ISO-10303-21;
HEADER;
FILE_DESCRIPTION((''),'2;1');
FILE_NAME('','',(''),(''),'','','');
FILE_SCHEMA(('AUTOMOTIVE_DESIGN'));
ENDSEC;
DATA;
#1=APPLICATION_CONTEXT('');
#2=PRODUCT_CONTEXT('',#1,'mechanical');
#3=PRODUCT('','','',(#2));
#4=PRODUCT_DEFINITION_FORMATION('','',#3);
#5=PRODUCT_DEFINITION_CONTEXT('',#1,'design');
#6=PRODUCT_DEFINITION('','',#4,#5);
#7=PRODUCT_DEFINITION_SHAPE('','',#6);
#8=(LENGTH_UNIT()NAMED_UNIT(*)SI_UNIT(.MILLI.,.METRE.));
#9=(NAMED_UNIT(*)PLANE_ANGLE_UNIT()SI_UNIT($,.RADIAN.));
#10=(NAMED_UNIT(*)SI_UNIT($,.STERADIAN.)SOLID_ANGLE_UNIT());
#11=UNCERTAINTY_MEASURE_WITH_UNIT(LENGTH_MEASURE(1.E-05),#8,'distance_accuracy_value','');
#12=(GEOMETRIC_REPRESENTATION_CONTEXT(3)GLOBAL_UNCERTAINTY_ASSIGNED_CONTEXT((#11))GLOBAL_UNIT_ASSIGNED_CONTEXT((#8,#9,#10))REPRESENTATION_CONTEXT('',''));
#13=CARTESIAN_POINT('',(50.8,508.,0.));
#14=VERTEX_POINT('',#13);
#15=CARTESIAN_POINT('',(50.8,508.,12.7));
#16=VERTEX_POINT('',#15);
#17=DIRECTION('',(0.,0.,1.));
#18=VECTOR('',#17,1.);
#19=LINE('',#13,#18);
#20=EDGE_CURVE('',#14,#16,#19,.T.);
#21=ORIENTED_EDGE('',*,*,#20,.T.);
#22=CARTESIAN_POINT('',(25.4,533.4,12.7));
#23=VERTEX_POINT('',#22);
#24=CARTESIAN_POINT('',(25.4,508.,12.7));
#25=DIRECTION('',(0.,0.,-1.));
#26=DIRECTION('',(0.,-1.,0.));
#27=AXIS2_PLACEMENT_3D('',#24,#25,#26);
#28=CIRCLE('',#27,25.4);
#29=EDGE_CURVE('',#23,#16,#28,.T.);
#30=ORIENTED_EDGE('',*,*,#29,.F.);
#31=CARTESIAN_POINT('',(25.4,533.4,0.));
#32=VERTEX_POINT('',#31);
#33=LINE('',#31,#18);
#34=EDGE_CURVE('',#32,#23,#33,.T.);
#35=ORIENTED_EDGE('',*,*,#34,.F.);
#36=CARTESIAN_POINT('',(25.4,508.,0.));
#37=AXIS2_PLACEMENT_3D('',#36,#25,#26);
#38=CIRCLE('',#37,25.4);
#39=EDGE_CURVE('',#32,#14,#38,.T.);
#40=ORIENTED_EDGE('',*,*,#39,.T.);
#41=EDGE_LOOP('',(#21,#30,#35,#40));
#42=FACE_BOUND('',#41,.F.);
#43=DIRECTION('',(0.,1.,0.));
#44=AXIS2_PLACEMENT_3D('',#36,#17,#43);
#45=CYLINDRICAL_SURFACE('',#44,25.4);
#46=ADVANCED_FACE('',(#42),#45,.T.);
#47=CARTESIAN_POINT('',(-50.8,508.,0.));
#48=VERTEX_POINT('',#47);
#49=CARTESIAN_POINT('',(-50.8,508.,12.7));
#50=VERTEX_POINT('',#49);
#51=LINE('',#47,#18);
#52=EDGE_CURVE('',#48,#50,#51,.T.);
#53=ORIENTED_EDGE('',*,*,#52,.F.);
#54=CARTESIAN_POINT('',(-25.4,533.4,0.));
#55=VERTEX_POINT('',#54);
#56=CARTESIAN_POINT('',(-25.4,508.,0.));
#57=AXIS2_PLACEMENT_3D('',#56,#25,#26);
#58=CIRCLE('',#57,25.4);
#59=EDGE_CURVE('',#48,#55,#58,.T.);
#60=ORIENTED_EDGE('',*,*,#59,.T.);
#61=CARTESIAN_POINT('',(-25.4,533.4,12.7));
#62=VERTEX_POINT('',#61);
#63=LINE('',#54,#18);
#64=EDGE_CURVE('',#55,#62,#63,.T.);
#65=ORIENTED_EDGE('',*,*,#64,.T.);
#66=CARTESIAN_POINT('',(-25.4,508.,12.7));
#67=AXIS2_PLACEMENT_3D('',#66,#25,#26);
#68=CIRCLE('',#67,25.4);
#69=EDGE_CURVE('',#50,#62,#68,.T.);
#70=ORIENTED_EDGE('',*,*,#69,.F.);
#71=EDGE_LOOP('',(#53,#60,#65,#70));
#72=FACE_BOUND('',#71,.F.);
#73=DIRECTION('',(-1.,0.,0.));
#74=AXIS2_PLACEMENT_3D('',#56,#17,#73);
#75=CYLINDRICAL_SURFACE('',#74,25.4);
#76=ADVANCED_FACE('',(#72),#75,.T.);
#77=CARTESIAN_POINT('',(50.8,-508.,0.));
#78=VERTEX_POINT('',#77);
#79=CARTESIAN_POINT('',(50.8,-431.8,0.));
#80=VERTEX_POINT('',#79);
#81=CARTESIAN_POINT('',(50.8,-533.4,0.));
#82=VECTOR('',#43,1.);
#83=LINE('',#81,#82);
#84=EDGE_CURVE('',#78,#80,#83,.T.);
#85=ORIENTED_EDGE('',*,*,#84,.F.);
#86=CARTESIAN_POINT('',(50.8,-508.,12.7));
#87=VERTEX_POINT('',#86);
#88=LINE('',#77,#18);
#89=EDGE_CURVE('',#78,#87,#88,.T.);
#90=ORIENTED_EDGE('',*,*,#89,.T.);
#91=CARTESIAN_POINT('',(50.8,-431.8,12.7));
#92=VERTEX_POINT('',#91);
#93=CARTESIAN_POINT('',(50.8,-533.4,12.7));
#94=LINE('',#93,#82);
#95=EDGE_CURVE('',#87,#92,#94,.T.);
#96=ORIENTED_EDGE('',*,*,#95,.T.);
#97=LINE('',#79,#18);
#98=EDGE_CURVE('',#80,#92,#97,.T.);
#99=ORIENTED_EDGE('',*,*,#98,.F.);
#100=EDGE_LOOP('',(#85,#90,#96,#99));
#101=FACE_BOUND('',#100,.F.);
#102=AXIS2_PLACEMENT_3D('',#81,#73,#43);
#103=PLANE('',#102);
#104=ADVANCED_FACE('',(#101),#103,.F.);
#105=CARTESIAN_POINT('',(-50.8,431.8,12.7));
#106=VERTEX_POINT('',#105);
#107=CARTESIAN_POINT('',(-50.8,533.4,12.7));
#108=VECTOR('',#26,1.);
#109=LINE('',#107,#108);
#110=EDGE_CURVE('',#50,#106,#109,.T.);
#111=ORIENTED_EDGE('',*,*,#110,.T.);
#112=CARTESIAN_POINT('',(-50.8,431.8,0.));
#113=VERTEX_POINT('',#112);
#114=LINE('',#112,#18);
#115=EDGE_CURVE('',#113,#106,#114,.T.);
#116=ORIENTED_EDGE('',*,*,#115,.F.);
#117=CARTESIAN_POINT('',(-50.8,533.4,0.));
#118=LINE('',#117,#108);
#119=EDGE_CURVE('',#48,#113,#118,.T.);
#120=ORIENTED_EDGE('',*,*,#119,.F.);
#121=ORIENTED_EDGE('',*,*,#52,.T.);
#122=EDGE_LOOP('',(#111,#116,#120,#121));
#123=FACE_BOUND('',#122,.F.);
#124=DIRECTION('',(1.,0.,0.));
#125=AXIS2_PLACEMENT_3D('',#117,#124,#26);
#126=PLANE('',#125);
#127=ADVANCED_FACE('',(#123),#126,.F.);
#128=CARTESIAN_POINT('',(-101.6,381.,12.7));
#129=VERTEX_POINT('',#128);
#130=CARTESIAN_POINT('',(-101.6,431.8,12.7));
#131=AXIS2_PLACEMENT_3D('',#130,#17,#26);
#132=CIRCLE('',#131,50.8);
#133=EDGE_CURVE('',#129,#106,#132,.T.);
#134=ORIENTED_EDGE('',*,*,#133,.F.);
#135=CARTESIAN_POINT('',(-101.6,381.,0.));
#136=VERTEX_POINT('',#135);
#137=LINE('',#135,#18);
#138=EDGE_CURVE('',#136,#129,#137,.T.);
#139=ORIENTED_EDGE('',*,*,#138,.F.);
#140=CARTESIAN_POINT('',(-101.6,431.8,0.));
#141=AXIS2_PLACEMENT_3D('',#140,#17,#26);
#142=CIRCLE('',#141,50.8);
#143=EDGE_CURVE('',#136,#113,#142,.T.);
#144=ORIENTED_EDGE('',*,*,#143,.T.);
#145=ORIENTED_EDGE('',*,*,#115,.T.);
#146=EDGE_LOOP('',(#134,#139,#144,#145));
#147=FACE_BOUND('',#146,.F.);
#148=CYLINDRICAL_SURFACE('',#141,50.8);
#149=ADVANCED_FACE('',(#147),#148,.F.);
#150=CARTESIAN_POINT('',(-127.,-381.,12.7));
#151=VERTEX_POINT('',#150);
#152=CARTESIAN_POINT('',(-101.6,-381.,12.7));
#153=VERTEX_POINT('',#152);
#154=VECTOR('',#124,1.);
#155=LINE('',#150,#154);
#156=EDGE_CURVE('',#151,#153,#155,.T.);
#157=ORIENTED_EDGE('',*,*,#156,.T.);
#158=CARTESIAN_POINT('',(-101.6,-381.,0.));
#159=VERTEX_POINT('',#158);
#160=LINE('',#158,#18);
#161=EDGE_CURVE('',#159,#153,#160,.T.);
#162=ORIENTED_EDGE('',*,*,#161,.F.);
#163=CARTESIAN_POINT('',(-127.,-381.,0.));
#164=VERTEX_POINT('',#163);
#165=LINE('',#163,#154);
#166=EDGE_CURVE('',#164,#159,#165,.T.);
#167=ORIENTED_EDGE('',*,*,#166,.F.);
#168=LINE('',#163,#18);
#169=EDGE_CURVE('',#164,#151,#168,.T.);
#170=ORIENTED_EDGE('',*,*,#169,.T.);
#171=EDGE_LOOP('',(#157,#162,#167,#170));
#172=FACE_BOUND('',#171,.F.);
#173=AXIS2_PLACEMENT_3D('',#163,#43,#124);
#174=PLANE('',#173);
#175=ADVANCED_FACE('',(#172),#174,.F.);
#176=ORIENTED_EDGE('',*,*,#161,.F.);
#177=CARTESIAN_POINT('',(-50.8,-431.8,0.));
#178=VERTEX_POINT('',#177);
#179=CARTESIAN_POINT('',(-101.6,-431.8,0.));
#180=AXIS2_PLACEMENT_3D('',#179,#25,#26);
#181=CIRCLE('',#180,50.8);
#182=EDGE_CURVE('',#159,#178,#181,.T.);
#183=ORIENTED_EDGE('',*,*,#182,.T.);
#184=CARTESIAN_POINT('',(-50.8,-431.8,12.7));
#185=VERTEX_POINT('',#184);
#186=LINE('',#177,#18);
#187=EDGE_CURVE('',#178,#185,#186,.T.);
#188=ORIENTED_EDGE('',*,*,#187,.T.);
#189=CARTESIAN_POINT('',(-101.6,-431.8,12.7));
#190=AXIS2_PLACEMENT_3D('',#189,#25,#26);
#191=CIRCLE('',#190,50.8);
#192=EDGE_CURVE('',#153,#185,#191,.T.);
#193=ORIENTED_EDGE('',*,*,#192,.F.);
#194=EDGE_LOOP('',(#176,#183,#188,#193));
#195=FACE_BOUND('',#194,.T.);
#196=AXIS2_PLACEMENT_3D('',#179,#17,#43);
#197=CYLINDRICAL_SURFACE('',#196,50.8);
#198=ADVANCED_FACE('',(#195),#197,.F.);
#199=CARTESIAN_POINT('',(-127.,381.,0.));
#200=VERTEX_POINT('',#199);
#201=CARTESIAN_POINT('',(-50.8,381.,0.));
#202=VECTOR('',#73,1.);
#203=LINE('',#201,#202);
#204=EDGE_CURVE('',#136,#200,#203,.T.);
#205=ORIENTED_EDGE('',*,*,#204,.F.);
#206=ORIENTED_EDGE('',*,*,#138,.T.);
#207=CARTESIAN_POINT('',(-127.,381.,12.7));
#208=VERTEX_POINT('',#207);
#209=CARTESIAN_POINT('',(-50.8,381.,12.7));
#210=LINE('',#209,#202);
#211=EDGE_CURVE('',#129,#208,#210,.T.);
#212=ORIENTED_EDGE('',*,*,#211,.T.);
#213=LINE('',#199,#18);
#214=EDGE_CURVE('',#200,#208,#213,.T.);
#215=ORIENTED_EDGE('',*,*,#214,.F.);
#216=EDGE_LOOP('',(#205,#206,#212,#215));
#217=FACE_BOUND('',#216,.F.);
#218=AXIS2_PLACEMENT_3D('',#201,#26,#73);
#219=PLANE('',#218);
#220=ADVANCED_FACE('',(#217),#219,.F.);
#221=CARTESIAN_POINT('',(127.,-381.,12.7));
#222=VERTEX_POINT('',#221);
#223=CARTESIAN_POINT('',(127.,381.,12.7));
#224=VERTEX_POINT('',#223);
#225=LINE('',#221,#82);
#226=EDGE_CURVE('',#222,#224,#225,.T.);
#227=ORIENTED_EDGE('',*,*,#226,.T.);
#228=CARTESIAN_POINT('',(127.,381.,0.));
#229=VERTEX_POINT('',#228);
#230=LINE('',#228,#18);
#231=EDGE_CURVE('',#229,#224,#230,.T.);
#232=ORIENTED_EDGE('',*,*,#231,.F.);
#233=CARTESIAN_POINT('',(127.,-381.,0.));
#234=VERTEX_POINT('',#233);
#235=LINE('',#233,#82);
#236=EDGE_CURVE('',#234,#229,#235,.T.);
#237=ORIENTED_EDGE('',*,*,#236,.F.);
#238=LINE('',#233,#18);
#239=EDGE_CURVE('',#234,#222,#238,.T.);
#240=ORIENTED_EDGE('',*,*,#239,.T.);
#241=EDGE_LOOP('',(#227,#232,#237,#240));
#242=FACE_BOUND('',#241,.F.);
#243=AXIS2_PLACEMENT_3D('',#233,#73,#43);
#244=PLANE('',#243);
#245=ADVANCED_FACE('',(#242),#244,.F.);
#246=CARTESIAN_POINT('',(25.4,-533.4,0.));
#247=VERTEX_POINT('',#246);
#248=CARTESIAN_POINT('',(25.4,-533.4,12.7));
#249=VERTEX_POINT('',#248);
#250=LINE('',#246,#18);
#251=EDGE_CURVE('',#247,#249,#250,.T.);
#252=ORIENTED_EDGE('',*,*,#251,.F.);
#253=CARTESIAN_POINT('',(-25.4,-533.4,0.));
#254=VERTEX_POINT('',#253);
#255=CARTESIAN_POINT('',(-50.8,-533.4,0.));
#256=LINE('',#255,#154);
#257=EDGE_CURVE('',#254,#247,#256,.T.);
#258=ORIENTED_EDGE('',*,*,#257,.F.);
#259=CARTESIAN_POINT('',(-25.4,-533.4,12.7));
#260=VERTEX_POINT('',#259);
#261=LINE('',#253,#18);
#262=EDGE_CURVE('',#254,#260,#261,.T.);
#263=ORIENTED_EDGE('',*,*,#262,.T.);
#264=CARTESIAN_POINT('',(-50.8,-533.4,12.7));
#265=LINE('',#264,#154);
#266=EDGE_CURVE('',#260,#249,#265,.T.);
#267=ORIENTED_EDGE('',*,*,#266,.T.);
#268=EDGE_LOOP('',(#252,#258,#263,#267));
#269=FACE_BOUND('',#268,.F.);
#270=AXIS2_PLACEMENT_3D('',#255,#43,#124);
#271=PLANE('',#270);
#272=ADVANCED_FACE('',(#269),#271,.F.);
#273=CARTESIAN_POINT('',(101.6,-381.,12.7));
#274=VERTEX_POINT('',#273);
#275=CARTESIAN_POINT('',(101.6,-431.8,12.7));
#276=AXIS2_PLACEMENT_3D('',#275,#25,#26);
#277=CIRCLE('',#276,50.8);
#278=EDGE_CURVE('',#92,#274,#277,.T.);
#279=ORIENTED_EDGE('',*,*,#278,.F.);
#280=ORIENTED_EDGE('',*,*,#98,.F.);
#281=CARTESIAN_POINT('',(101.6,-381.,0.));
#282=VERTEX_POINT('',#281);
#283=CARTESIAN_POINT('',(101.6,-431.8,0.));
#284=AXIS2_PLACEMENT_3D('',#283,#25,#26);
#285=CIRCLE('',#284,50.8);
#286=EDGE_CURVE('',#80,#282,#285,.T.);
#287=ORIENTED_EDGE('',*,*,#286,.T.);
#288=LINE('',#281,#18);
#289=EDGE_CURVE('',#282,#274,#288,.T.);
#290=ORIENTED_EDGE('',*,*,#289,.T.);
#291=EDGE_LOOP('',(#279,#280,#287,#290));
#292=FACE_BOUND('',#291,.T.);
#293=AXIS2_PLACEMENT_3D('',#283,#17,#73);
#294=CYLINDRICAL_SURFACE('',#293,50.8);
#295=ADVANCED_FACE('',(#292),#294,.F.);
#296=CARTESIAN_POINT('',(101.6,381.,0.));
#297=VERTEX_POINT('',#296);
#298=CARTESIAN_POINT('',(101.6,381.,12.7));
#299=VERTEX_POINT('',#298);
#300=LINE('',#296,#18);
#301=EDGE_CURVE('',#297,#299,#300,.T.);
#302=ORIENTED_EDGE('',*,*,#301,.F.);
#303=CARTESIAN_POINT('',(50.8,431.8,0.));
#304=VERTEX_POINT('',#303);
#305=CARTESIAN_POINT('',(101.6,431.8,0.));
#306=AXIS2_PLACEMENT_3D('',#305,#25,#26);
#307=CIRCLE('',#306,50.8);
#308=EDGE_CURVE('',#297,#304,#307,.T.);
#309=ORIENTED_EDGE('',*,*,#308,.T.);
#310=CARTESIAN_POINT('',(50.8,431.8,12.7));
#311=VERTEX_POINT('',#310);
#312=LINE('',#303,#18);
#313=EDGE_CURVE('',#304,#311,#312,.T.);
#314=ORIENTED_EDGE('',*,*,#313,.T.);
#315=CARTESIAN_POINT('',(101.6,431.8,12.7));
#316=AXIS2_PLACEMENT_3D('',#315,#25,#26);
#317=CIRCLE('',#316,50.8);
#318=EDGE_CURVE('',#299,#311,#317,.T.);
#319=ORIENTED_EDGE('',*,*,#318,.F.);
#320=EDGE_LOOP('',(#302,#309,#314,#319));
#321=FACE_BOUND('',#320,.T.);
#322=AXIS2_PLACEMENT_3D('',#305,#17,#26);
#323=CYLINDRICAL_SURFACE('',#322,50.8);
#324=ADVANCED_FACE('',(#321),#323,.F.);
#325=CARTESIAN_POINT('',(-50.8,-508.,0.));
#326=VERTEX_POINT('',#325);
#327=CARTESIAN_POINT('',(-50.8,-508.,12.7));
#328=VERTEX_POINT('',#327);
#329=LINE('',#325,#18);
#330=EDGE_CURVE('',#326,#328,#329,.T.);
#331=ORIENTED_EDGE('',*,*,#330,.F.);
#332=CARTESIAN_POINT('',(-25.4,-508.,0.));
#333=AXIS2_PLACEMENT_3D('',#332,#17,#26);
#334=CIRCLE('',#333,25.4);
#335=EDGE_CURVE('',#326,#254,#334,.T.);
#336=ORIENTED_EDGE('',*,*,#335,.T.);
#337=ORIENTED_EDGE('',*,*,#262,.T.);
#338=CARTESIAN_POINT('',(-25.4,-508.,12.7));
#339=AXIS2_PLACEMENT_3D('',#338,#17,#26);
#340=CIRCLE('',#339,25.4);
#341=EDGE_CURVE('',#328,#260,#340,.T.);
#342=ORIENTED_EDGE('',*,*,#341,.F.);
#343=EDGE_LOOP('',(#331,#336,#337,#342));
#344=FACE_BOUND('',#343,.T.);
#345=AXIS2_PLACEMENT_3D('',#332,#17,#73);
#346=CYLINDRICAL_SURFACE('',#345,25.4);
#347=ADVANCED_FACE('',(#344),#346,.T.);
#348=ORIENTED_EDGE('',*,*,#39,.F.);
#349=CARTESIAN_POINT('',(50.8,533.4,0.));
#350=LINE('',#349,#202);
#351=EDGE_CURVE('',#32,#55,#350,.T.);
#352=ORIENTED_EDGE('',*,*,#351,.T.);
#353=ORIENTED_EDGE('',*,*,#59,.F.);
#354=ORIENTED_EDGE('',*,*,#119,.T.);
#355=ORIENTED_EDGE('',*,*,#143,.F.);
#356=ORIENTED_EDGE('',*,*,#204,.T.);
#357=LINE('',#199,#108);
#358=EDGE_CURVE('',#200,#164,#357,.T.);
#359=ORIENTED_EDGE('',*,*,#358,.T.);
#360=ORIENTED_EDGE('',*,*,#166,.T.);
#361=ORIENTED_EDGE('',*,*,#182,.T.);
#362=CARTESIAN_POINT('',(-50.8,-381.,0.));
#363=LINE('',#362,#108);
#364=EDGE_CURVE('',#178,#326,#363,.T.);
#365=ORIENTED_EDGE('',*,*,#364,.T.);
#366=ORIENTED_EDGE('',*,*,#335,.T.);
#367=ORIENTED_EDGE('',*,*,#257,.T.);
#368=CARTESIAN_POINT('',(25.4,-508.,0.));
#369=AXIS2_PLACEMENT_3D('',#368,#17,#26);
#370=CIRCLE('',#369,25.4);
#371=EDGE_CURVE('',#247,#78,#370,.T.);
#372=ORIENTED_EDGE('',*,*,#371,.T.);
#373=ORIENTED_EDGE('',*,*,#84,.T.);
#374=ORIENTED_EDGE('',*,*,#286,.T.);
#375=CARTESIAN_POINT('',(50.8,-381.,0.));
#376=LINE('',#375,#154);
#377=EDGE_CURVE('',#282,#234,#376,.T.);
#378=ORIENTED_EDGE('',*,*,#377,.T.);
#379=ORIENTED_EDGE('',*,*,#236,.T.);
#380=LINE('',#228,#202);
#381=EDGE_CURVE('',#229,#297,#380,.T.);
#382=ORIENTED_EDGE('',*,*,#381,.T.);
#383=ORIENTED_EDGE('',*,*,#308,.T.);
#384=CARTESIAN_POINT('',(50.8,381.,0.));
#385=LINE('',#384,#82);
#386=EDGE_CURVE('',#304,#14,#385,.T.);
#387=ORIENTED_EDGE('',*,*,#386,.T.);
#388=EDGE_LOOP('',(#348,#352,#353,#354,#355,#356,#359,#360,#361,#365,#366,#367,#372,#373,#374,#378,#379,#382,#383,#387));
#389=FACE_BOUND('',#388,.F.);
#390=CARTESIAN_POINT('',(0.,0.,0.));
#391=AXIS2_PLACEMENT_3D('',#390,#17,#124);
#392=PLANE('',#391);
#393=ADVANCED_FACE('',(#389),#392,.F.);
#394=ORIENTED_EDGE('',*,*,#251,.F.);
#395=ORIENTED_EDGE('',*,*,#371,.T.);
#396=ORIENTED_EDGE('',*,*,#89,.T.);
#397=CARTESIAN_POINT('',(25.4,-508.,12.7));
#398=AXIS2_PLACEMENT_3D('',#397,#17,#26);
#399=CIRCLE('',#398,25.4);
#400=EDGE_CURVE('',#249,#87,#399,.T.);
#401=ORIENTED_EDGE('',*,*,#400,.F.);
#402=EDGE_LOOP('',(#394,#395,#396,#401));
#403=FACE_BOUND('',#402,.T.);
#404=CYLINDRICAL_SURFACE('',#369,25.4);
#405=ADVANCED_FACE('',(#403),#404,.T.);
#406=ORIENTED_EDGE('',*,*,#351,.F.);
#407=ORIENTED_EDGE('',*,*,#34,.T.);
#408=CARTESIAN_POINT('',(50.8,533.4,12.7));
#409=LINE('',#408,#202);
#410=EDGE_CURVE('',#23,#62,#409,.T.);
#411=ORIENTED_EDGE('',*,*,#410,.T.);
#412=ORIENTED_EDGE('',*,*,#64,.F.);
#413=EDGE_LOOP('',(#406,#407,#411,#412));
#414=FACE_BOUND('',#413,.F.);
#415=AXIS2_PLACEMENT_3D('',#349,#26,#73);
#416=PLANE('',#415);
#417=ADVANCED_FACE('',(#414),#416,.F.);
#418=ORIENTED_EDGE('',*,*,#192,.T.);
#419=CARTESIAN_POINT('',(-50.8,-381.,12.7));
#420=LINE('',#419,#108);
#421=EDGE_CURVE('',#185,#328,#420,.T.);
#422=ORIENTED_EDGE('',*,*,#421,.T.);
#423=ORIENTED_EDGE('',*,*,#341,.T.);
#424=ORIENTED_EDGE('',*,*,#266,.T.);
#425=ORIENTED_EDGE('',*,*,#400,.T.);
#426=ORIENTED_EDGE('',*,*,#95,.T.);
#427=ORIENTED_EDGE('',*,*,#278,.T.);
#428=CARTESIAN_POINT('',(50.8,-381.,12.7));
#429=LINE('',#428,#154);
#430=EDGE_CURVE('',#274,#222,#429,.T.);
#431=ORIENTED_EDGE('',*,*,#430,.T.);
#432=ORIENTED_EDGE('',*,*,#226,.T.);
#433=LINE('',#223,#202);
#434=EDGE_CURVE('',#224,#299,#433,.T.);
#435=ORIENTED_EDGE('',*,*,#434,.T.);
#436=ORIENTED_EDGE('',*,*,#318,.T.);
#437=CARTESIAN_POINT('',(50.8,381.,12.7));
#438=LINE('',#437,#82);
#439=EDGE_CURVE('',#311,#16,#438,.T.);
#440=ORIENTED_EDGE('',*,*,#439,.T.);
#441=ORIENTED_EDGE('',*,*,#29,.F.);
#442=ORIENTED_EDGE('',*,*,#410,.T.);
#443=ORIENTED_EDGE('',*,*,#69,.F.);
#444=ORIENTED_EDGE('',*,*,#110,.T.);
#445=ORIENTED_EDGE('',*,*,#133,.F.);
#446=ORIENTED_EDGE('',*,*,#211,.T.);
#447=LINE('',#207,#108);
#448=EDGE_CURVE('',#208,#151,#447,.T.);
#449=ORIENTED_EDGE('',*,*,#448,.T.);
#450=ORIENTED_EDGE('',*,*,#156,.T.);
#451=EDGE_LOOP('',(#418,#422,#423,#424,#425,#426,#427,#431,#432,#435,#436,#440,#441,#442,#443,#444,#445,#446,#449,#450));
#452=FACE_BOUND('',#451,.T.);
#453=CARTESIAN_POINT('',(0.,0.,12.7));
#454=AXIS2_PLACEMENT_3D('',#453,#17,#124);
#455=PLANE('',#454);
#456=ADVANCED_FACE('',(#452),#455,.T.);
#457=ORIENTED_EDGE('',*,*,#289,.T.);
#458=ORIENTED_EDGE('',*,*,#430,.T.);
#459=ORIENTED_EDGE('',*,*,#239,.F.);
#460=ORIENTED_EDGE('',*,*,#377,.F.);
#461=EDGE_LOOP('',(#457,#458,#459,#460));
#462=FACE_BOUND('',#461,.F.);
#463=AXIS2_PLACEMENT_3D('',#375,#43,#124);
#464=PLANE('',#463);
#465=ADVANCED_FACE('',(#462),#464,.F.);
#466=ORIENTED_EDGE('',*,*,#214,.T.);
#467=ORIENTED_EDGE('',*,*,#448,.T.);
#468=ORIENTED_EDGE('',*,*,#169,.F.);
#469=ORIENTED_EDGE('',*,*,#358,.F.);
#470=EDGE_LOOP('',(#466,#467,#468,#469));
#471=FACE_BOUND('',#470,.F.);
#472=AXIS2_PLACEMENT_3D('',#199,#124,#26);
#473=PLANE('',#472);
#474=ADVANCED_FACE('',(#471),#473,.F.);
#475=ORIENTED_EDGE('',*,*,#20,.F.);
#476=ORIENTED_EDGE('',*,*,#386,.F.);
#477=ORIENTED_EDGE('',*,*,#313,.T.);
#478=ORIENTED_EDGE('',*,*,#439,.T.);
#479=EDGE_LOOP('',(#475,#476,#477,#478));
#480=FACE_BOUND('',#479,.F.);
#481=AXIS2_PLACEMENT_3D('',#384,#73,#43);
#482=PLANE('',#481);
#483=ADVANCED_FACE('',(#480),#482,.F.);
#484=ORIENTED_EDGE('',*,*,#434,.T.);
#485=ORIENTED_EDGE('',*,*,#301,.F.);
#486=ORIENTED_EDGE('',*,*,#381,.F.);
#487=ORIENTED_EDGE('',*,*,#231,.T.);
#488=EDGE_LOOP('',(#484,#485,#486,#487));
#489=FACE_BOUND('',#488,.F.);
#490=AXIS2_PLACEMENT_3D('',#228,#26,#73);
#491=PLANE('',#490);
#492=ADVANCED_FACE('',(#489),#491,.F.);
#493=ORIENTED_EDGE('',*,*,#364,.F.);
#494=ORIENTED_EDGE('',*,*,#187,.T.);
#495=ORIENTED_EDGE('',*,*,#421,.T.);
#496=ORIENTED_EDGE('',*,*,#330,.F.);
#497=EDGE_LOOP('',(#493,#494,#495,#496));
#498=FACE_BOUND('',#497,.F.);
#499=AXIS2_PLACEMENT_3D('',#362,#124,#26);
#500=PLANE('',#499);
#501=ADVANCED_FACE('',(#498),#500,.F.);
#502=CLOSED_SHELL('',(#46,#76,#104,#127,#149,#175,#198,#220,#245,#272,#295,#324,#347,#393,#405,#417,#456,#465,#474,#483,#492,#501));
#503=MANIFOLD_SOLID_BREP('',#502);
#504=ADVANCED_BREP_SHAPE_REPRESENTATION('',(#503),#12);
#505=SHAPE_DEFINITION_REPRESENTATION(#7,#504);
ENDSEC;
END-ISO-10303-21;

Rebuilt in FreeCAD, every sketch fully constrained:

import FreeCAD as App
import Part
import Sketcher

V = App.Vector
Q = App.Units.Quantity


def edges_at(feature, points):
    """Names of the edges that pass closest to the given points."""
    edges = feature.Shape.Edges
    near = lambda p: min(range(len(edges)), key=lambda i: edges[i].distToShape(Part.Vertex(*p))[0])
    return sorted({f"Edge{near(p) + 1}" for p in points})


def add_polygon(sketch, points):
    """Adds a closed chain of lines whose ends are joined by coincident constraints."""
    first, n = sketch.GeometryCount, len(points)
    for a, b in zip(points, points[1:] + points[:1]):
        sketch.addGeometry(Part.LineSegment(App.Vector(*a, 0), App.Vector(*b, 0)), False)
    for i in range(n):
        sketch.addConstraint(Sketcher.Constraint("Coincident", first + i, 2, first + (i + 1) % n, 1))

doc = App.newDocument("Part")
body = doc.addObject("PartDesign::Body", "Body")

# Sketch on XY plane
sketch1 = body.newObject("Sketcher::SketchObject", "Sketch")
sketch1.AttachmentSupport = (doc.getObject("XY_Plane"), [""])
sketch1.MapMode = "FlatFace"
add_polygon(sketch1, [(-50.8, 381), (-127, 381), (-127, -381), (-50.8, -381), (-50.8, -533.4), (50.8, -533.4), (50.8, -381), (127, -381), (127, 381), (50.8, 381), (50.8, 533.4), (-50.8, 533.4)])  # lines 0-11
sketch1.addConstraint(Sketcher.Constraint("Horizontal", 0))
sketch1.addConstraint(Sketcher.Constraint("Vertical", 1))
sketch1.addConstraint(Sketcher.Constraint("Horizontal", 2))
sketch1.addConstraint(Sketcher.Constraint("Vertical", 3))
sketch1.addConstraint(Sketcher.Constraint("Horizontal", 4))
sketch1.addConstraint(Sketcher.Constraint("Vertical", 5))
sketch1.addConstraint(Sketcher.Constraint("Horizontal", 6))
sketch1.addConstraint(Sketcher.Constraint("Vertical", 7))
sketch1.addConstraint(Sketcher.Constraint("Horizontal", 8))
sketch1.addConstraint(Sketcher.Constraint("Vertical", 9))
sketch1.addConstraint(Sketcher.Constraint("Horizontal", 10))
sketch1.addConstraint(Sketcher.Constraint("Vertical", 11))
sketch1.addConstraint(Sketcher.Constraint("Symmetric", 0, 2, 6, 2, -1, 1))
sketch1.addConstraint(Sketcher.Constraint("Symmetric", 2, 2, 8, 2, -1, 1))
sketch1.addConstraint(Sketcher.Constraint("Symmetric", 4, 2, 10, 2, -1, 1))
sketch1.addConstraint(Sketcher.Constraint("Symmetric", 2, 2, 5, 2, -2))
sketch1.addConstraint(Sketcher.Constraint("DistanceX", 0, 2, 0, 1, Q("3 in")))
sketch1.addConstraint(Sketcher.Constraint("DistanceX", 4, 1, 4, 2, Q("4 in")))
sketch1.addConstraint(Sketcher.Constraint("DistanceY", 1, 2, 1, 1, Q("30 in")))
sketch1.addConstraint(Sketcher.Constraint("DistanceY", 3, 2, 3, 1, Q("6 in")))
pad1 = body.newObject("PartDesign::Pad", "Pad")
pad1.Profile = sketch1
pad1.Length = Q("0.5 in")
doc.recompute()

fillet = body.newObject("PartDesign::Fillet", "Fillet")
fillet.Base = (pad1, edges_at(pad1, [
    (-50.8, 381, 6.35),
    (50.8, 381, 6.35),
    (-50.8, -381, 6.35),
    (50.8, -381, 6.35),
]))
fillet.Radius = Q("2 in")
doc.recompute()

fillet2 = body.newObject("PartDesign::Fillet", "Fillet001")
fillet2.Base = (fillet, edges_at(fillet, [
    (-50.8, -533.4, 6.35),
    (50.8, -533.4, 6.35),
    (50.8, 533.4, 6.35),
    (-50.8, 533.4, 6.35),
]))
fillet2.Radius = Q("1 in")

doc.recompute()
